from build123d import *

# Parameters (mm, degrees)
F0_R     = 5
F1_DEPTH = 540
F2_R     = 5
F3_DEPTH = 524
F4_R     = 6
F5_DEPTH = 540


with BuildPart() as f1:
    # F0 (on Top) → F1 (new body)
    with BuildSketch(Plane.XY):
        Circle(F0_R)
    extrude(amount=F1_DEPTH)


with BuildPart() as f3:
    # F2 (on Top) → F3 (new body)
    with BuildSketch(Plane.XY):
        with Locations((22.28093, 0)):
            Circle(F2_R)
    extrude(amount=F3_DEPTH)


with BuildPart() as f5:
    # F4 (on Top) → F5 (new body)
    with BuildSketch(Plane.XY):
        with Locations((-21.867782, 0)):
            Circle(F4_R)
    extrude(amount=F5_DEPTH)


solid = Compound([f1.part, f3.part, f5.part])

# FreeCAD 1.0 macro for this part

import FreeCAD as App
import Part
import Sketcher
from FreeCAD import Vector

doc = App.newDocument("Part")
body = doc.addObject("PartDesign::Body", "Body")

# Sketch on XY plane
sketch1 = body.newObject("Sketcher::SketchObject", "Sketch")
sketch1.AttachmentSupport = (doc.getObject("XY_Plane"), [""])
sketch1.MapMode = "FlatFace"
sketch1.addGeometry(Part.Circle(Vector(0, 0, 0), Vector(0, 0, 1), 5), False)
sketch1.addConstraint([
    Sketcher.Constraint("Coincident", 0, 3, -1, 1),
    Sketcher.Constraint("Diameter", 0, 10.0),
])
pad1 = body.newObject("PartDesign::Pad", "Pad")
pad1.Profile = sketch1
pad1.Length = 540
body2 = doc.addObject("PartDesign::Body", "Body001")

# Sketch on XY plane
sketch2 = body2.newObject("Sketcher::SketchObject", "Sketch001")
sketch2.AttachmentSupport = (doc.getObject("XY_Plane001"), [""])
sketch2.MapMode = "FlatFace"
sketch2.addGeometry(Part.Circle(Vector(22, 0, 0), Vector(0, 0, 1), 5), False)
sketch2.addConstraint([
    Sketcher.Constraint("PointOnObject", 0, 3, -1),
    Sketcher.Constraint("Diameter", 0, 10.0),
    Sketcher.Constraint("DistanceX", -1, 1, 0, 3, 22.28093),
])
pad2 = body2.newObject("PartDesign::Pad", "Pad001")
pad2.Profile = sketch2
pad2.Length = 524
body3 = doc.addObject("PartDesign::Body", "Body002")

# Sketch on XY plane
sketch3 = body3.newObject("Sketcher::SketchObject", "Sketch002")
sketch3.AttachmentSupport = (doc.getObject("XY_Plane002"), [""])
sketch3.MapMode = "FlatFace"
sketch3.addGeometry(Part.Circle(Vector(-22, 0, 0), Vector(0, 0, 1), 6), False)
sketch3.addConstraint([
    Sketcher.Constraint("PointOnObject", 0, 3, -1),
    Sketcher.Constraint("Diameter", 0, 12.0),
    Sketcher.Constraint("DistanceX", 0, 3, -1, 1, 21.867782),
])
pad3 = body3.newObject("PartDesign::Pad", "Pad002")
pad3.Profile = sketch3
pad3.Length = 540

doc.recompute()
